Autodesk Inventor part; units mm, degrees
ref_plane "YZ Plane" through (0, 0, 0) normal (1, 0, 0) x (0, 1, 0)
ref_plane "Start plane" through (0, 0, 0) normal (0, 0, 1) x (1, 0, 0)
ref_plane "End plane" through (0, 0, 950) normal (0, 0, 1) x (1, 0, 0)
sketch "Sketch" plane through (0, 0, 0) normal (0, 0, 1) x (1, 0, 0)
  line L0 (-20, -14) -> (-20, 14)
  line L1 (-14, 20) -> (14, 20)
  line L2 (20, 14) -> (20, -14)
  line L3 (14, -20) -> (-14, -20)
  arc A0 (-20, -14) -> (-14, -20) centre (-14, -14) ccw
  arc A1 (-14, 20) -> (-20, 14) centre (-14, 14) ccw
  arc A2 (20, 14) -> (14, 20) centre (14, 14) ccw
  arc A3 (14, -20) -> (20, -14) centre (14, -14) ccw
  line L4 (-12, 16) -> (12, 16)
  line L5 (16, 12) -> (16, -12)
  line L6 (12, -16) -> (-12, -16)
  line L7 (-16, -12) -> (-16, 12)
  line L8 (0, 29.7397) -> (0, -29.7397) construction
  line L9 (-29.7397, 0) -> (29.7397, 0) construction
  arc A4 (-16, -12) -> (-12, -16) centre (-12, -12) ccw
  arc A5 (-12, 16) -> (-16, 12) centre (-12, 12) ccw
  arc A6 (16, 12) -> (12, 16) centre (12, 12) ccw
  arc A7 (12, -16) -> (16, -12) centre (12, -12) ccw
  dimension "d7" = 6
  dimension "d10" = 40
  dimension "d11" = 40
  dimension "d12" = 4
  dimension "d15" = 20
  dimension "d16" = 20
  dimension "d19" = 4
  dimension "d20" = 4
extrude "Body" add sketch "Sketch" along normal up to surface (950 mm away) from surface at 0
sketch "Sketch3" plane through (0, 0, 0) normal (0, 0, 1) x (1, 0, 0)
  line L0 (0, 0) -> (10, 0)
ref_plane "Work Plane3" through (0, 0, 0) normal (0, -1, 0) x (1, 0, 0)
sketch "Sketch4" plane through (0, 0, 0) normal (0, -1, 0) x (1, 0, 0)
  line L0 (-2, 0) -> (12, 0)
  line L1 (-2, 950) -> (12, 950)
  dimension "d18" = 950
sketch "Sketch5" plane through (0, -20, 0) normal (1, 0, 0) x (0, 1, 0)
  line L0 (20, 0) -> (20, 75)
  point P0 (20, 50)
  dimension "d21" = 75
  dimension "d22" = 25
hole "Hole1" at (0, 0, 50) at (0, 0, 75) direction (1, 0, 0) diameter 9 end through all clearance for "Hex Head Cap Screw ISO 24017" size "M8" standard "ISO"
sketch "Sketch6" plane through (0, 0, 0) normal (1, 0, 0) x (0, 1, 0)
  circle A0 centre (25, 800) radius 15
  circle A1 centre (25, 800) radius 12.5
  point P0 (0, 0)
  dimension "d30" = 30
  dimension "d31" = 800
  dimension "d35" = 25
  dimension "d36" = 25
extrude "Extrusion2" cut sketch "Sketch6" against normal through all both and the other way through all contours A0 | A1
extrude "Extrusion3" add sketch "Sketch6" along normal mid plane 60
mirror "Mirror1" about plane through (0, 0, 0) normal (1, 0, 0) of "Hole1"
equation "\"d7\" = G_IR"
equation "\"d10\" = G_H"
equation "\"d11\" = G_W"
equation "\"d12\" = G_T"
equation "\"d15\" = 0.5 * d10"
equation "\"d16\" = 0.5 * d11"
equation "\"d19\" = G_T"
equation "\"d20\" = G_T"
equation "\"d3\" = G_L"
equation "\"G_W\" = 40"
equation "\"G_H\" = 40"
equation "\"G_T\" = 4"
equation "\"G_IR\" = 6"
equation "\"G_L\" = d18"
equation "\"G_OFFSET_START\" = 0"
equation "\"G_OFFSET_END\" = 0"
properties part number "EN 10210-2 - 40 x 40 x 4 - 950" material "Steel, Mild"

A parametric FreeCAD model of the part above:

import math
import FreeCAD as App
import Part
import Sketcher
from FreeCAD import Vector
Q = App.Units.Quantity

doc = App.newDocument("Part")
body = doc.addObject("PartDesign::Body", "Body")

sketch1 = doc.addObject("Sketcher::SketchObject", "Sketch")
body.addObject(sketch1)
sketch1.AttachmentSupport = (doc.XY_Plane, [""])
sketch1.MapMode = "FlatFace"
sketch1.addGeometry([
    Part.LineSegment(Vector(-20, 14, 0), Vector(-20, -14, 0)),
    Part.ArcOfCircle(Part.Circle(Vector(-14, -14, 0), Vector(0, 0, 1), 6), math.radians(180), math.radians(270)),
    Part.LineSegment(Vector(-14, -20, 0), Vector(14, -20, 0)),
    Part.ArcOfCircle(Part.Circle(Vector(14, -14, 0), Vector(0, 0, 1), 6), math.radians(-90), math.radians(0)),
    Part.LineSegment(Vector(20, -14, 0), Vector(20, 14, 0)),
    Part.ArcOfCircle(Part.Circle(Vector(14, 14, 0), Vector(0, 0, 1), 6), math.radians(0), math.radians(90)),
    Part.LineSegment(Vector(14, 20, 0), Vector(-14, 20, 0)),
    Part.ArcOfCircle(Part.Circle(Vector(-14, 14, 0), Vector(0, 0, 1), 6), math.radians(90), math.radians(180)),
    Part.ArcOfCircle(Part.Circle(Vector(-12, 12, 0), Vector(0, 0, 1), 4), math.radians(90), math.radians(180)),
    Part.LineSegment(Vector(-12, 16, 0), Vector(12, 16, 0)),
    Part.ArcOfCircle(Part.Circle(Vector(12, 12, 0), Vector(0, 0, 1), 4), math.radians(0), math.radians(90)),
    Part.LineSegment(Vector(16, 12, 0), Vector(16, -12, 0)),
    Part.ArcOfCircle(Part.Circle(Vector(12, -12, 0), Vector(0, 0, 1), 4), math.radians(-90), math.radians(0)),
    Part.LineSegment(Vector(12, -16, 0), Vector(-12, -16, 0)),
    Part.ArcOfCircle(Part.Circle(Vector(-12, -12, 0), Vector(0, 0, 1), 4), math.radians(180), math.radians(270)),
    Part.LineSegment(Vector(-16, -12, 0), Vector(-16, 12, 0)),
], False)
sketch1.addConstraint([
    Sketcher.Constraint("Tangent", 0, 2, 1, 1),
    Sketcher.Constraint("Tangent", 1, 2, 2, 1),
    Sketcher.Constraint("Tangent", 2, 2, 3, 1),
    Sketcher.Constraint("Tangent", 3, 2, 4, 1),
    Sketcher.Constraint("Tangent", 4, 2, 5, 1),
    Sketcher.Constraint("Tangent", 5, 2, 6, 1),
    Sketcher.Constraint("Tangent", 6, 2, 7, 1),
    Sketcher.Constraint("Tangent", 7, 2, 0, 1),
    Sketcher.Constraint("Tangent", 8, 1, 9, 1),
    Sketcher.Constraint("Tangent", 9, 2, 10, 2),
    Sketcher.Constraint("Tangent", 10, 1, 11, 1),
    Sketcher.Constraint("Tangent", 11, 2, 12, 2),
    Sketcher.Constraint("Tangent", 12, 1, 13, 1),
    Sketcher.Constraint("Tangent", 13, 2, 14, 2),
    Sketcher.Constraint("Tangent", 14, 1, 15, 1),
    Sketcher.Constraint("Tangent", 15, 2, 8, 2),
    Sketcher.Constraint("Vertical", 0),
    Sketcher.Constraint("Horizontal", 2),
    Sketcher.Constraint("Vertical", 4),
    Sketcher.Constraint("Horizontal", 6),
    Sketcher.Constraint("Horizontal", 9),
    Sketcher.Constraint("Vertical", 11),
    Sketcher.Constraint("Horizontal", 13),
    Sketcher.Constraint("Vertical", 15),
    Sketcher.Constraint("Equal", 1, 3),
    Sketcher.Constraint("Equal", 3, 5),
    Sketcher.Constraint("Equal", 5, 7),
    Sketcher.Constraint("Equal", 8, 10),
    Sketcher.Constraint("Equal", 10, 12),
    Sketcher.Constraint("Equal", 12, 14),
    Sketcher.Constraint("Symmetric", 1, 3, 5, 3, -1, 1),
    Sketcher.Constraint("Symmetric", 8, 3, 12, 3, -1, 1),
    Sketcher.Constraint("Equal", 6, 0),
    Sketcher.Constraint("Equal", 13, 11),
    Sketcher.Constraint("Radius", 1, Q("6 mm")),
    Sketcher.Constraint("Radius", 8, Q("4 mm")),
    Sketcher.Constraint("DistanceX", 0, 2, -1, 1, Q("20 mm")),
    Sketcher.Constraint("DistanceY", 8, 1, 6, 2, Q("4 mm")),
])
pad1 = doc.addObject("PartDesign::Pad", "Pad")
body.addObject(pad1)
pad1.Profile = sketch1
pad1.Length = 950

sketch2 = doc.addObject("Sketcher::SketchObject", "Sketch001")
body.addObject(sketch2)
sketch2.AttachmentSupport = (doc.YZ_Plane, [""])
sketch2.MapMode = "FlatFace"
sketch2.addGeometry([
    Part.Circle(Vector(0, 50, 0), Vector(0, 0, 1), 4.5),
    Part.Circle(Vector(0, 75, 0), Vector(0, 0, 1), 4.5),
], False)
sketch2.addConstraint([
    Sketcher.Constraint("Equal", 0, 1),
    Sketcher.Constraint("PointOnObject", 0, 3, -2),
    Sketcher.Constraint("PointOnObject", 1, 3, -2),
    Sketcher.Constraint("Diameter", 0, Q("9 mm")),
    Sketcher.Constraint("DistanceY", -1, 1, 0, 3, Q("50 mm")),
    Sketcher.Constraint("DistanceY", -1, 1, 1, 3, Q("75 mm")),
])
doc.recompute()
hole = doc.addObject("PartDesign::Hole", "Hole")
body.addObject(hole)
hole.Profile = sketch2
hole.ThreadType = "None"
hole.Diameter = 9
hole.DepthType = "ThroughAll"
hole.Reversed = True

sketch3 = doc.addObject("Sketcher::SketchObject", "Sketch002")
body.addObject(sketch3)
sketch3.AttachmentSupport = (doc.YZ_Plane, [""])
sketch3.MapMode = "FlatFace"
sketch3.addGeometry(Part.Circle(Vector(25, 800, 0), Vector(0, 0, 1), 15), False)
sketch3.addConstraint([
    Sketcher.Constraint("Diameter", 0, Q("30 mm")),
    Sketcher.Constraint("DistanceX", -1, 1, 0, 3, Q("25 mm")),
    Sketcher.Constraint("DistanceY", -1, 1, 0, 3, Q("800 mm")),
])
pocket1 = doc.addObject("PartDesign::Pocket", "Pocket")
body.addObject(pocket1)
pocket1.Profile = sketch3
pocket1.Type = "ThroughAll"
pocket1.Midplane = True

sketch4 = doc.addObject("Sketcher::SketchObject", "Sketch003")
body.addObject(sketch4)
sketch4.AttachmentSupport = (doc.YZ_Plane, [""])
sketch4.MapMode = "FlatFace"
sketch4.addGeometry([
    Part.Circle(Vector(25, 800, 0), Vector(0, 0, 1), 15),
    Part.Circle(Vector(25, 800, 0), Vector(0, 0, 1), 12.5),
], False)
sketch4.addConstraint([
    Sketcher.Constraint("Coincident", 1, 3, 0, 3),
    Sketcher.Constraint("Diameter", 0, Q("30 mm")),
    Sketcher.Constraint("Diameter", 1, Q("25 mm")),
    Sketcher.Constraint("DistanceX", -1, 1, 0, 3, Q("25 mm")),
    Sketcher.Constraint("DistanceY", -1, 1, 0, 3, Q("800 mm")),
])
pad2 = doc.addObject("PartDesign::Pad", "Pad001")
body.addObject(pad2)
pad2.Profile = sketch4
pad2.Length = 60
pad2.Midplane = True
doc.recompute()

mirrored = doc.addObject("PartDesign::Mirrored", "Mirrored")
body.addObject(mirrored)
mirrored.Originals = [hole]
mirrored.MirrorPlane = (doc.YZ_Plane, [""])
body.Tip = mirrored

doc.recompute()
